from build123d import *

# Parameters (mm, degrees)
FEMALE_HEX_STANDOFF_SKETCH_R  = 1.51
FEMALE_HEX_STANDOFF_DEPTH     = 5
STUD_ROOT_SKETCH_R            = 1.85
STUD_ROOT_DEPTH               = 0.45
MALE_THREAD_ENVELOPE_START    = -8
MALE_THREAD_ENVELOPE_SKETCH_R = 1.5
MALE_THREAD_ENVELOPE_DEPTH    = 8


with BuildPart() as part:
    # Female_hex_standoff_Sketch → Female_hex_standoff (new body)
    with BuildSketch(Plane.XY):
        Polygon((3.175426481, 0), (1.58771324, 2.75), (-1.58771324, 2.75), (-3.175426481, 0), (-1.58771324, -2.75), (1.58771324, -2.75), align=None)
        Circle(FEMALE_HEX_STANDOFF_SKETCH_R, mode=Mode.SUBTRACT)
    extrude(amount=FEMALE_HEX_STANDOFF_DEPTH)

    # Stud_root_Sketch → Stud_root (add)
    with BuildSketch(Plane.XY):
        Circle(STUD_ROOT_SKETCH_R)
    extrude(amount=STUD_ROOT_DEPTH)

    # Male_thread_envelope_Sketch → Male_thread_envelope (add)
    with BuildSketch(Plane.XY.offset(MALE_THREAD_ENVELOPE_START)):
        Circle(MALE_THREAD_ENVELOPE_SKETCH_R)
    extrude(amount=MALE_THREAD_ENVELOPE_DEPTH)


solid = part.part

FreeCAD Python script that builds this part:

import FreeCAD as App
import Part
import Sketcher
Q = App.Units.Quantity


def add_polygon(sketch, points):
    """Adds a closed chain of lines whose ends are joined by coincident constraints."""
    first, n = sketch.GeometryCount, len(points)
    for a, b in zip(points, points[1:] + points[:1]):
        sketch.addGeometry(Part.LineSegment(App.Vector(*a, 0), App.Vector(*b, 0)), False)
    for i in range(n):
        sketch.addConstraint(Sketcher.Constraint("Coincident", first + i, 2, first + (i + 1) % n, 1))

doc = App.newDocument("Part")
params = doc.addObject("Spreadsheet::Sheet", "Params")
for row, (alias, value) in enumerate([
    ("sketch1_diameter", "3.02 mm"),
    ("pad1_length", "5 mm"),
    ("sketch2_diameter", "3.7 mm"),
    ("pad2_length", "0.45 mm"),
    ("sketch3_diameter", "3 mm"),
    ("pad3_length", "8 mm"),
], start=1):
    params.set(f"A{row}", alias)
    params.set(f"B{row}", "=" + value)
    params.setAlias(f"B{row}", alias)

body = doc.addObject("PartDesign::Body", "Body")

# Sketch on XY plane
sketch1 = doc.addObject("Sketcher::SketchObject", "Sketch")
body.addObject(sketch1)
sketch1.AttachmentSupport = (doc.XY_Plane, [""])
sketch1.MapMode = "FlatFace"
add_polygon(sketch1, [(3.2, 0), (1.6, 2.8), (-1.6, 2.8), (-3.2, 0), (-1.6, -2.8), (1.6, -2.8)])  # lines 0-5
sketch1.addGeometry(Part.Circle(App.Vector(0, 0, 0), App.Vector(0, 0, 1), 1.5), False)  # 6
sketch1.addConstraint([
    Sketcher.Constraint("Horizontal", 1),
    Sketcher.Constraint("Horizontal", 4),
    Sketcher.Constraint("Coincident", 6, 3, -1, 1),
    Sketcher.Constraint("Symmetric", 0, 2, 3, 2, -1, 1),
    Sketcher.Constraint("Symmetric", 2, 2, 5, 2, -1, 1),
    Sketcher.Constraint("PointOnObject", 2, 2, -1),
    Sketcher.Constraint("Parallel", 2, 5),
    Sketcher.Constraint("Vertical", 1, 2, 3, 2),
    Sketcher.Constraint("Diameter", 6, Q("3.02 mm")),
    Sketcher.Constraint("Angle", 0, Q("120 deg")),
    Sketcher.Constraint("DistanceY", 3, 2, 1, 2, Q("5.5 mm")),
    Sketcher.Constraint("DistanceX", 1, 2, 1, 1, Q("3.175426 mm")),
])
sketch1.setExpression("Constraints[14]", "Params.sketch1_diameter")
pad1 = doc.addObject("PartDesign::Pad", "Pad")
body.addObject(pad1)
pad1.Profile = sketch1
pad1.setExpression("Length", "Params.pad1_length")

# Sketch on XY plane
sketch2 = doc.addObject("Sketcher::SketchObject", "Sketch001")
body.addObject(sketch2)
sketch2.AttachmentSupport = (doc.XY_Plane, [""])
sketch2.MapMode = "FlatFace"
sketch2.addGeometry(Part.Circle(App.Vector(0, 0, 0), App.Vector(0, 0, 1), 1.9), False)
sketch2.addConstraint([
    Sketcher.Constraint("Coincident", 0, 3, -1, 1),
    Sketcher.Constraint("Diameter", 0, Q("3.7 mm")),
])
sketch2.setExpression("Constraints[1]", "Params.sketch2_diameter")
pad2 = doc.addObject("PartDesign::Pad", "Pad001")
body.addObject(pad2)
pad2.Profile = sketch2
pad2.setExpression("Length", "Params.pad2_length")

# Sketch on XY plane
sketch3 = doc.addObject("Sketcher::SketchObject", "Sketch002")
body.addObject(sketch3)
sketch3.AttachmentSupport = (doc.XY_Plane, [""])
sketch3.MapMode = "FlatFace"
sketch3.AttachmentOffset = App.Placement(App.Vector(0, 0, -8), App.Rotation())
sketch3.addGeometry(Part.Circle(App.Vector(0, 0, 0), App.Vector(0, 0, 1), 1.5), False)
sketch3.addConstraint([
    Sketcher.Constraint("Coincident", 0, 3, -1, 1),
    Sketcher.Constraint("Diameter", 0, Q("3 mm")),
])
sketch3.setExpression("Constraints[1]", "Params.sketch3_diameter")
pad3 = doc.addObject("PartDesign::Pad", "Pad002")
body.addObject(pad3)
pad3.Profile = sketch3
pad3.setExpression("Length", "Params.pad3_length")

doc.recompute()
